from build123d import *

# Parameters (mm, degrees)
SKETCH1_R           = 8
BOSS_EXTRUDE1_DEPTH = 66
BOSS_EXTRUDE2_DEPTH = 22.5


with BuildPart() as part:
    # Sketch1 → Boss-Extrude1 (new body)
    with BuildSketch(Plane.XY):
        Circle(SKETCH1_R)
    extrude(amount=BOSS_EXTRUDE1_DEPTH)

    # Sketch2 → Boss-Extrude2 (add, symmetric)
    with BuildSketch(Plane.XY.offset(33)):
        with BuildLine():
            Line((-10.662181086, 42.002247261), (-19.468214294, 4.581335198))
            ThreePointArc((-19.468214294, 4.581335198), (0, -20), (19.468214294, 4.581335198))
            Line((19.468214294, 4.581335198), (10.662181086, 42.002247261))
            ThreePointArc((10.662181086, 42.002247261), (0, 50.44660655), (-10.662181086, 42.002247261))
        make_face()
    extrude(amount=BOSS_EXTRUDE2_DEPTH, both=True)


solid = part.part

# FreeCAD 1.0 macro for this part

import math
import FreeCAD as App
import Part
import Sketcher

V = App.Vector
Q = App.Units.Quantity

doc = App.newDocument("Part")
body = doc.addObject("PartDesign::Body", "Body")

sketch1 = body.newObject("Sketcher::SketchObject", "Sketch")
sketch1.AttachmentSupport = (doc.getObject("XY_Plane"), [""])
sketch1.MapMode = "FlatFace"
sketch1.addGeometry(Part.Circle(V(0, 0, 0), V(0, 0, 1), 8), False)
sketch1.addConstraint([
    Sketcher.Constraint("Coincident", 0, 3, -1, 1),
    Sketcher.Constraint("Diameter", 0, Q("16 mm")),
])
pad1 = body.newObject("PartDesign::Pad", "Pad")
pad1.Profile = sketch1
pad1.Length = 66

sketch2 = body.newObject("Sketcher::SketchObject", "Sketch001")
sketch2.AttachmentSupport = (doc.getObject("XY_Plane"), [""])
sketch2.MapMode = "FlatFace"
sketch2.AttachmentOffset = App.Placement(V(0, 0, 33), App.Rotation())
sketch2.addGeometry([
    Part.LineSegment(V(-11, 42, 0), V(-19, 5, 0)),
    Part.ArcOfCircle(Part.Circle(V(0, 0, 0), V(0, 0, 1), 20), math.radians(167), math.radians(373)),
    Part.LineSegment(V(19, 5, 0), V(11, 42, 0)),
    Part.ArcOfCircle(Part.Circle(V(0, 39, 0), V(0, 0, 1), 11), math.radians(13), math.radians(167)),
], False)
sketch2.addConstraint([
    Sketcher.Constraint("Tangent", 0, 2, 1, 1),
    Sketcher.Constraint("Tangent", 1, 2, 2, 1),
    Sketcher.Constraint("Tangent", 2, 2, 3, 1),
    Sketcher.Constraint("Tangent", 3, 2, 0, 1),
    Sketcher.Constraint("Coincident", 1, 3, -1, 1),
    Sketcher.Constraint("PointOnObject", 3, 3, -2),
    Sketcher.Constraint("Radius", 1, Q("20 mm")),
    Sketcher.Constraint("Radius", 3, Q("10.953425 mm")),
    Sketcher.Constraint("DistanceY", -1, 1, 3, 3, Q("39.493182 mm")),
])
pad2 = body.newObject("PartDesign::Pad", "Pad001")
pad2.Profile = sketch2
pad2.Length = 45
pad2.Midplane = True

doc.recompute()
